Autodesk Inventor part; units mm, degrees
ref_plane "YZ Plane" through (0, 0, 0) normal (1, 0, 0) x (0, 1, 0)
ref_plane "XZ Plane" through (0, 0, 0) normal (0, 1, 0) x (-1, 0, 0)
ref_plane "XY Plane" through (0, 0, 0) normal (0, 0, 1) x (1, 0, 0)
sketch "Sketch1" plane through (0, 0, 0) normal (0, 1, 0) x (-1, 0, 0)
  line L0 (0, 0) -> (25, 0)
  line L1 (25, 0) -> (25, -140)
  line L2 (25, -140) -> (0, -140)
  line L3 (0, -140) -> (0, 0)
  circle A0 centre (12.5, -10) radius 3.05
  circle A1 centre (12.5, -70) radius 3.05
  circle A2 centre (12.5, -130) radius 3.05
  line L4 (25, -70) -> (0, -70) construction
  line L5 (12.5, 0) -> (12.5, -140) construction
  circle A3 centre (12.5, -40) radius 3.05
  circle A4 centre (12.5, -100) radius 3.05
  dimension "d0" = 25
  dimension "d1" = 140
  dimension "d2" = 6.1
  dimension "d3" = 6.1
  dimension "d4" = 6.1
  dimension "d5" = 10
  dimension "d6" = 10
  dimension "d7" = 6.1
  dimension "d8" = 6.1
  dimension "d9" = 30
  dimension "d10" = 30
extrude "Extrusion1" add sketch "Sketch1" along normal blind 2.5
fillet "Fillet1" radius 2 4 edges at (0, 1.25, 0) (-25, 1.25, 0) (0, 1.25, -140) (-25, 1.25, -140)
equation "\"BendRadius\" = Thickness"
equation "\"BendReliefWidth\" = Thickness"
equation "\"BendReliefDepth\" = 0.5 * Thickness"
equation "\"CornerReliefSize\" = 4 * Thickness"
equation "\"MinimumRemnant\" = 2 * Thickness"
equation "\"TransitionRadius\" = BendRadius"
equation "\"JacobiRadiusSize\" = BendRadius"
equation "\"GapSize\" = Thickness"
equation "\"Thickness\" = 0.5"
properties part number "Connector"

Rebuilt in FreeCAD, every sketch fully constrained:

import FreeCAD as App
import Part
import Sketcher
from FreeCAD import Vector


def edges_at(feature, points):
    """Names of the edges that pass closest to the given points."""
    edges = feature.Shape.Edges
    near = lambda p: min(range(len(edges)), key=lambda i: edges[i].distToShape(Part.Vertex(*p))[0])
    return sorted({f"Edge{near(p) + 1}" for p in points})

doc = App.newDocument("Part")
body = doc.addObject("PartDesign::Body", "Body")

sketch1 = body.newObject("Sketcher::SketchObject", "Sketch")
sketch1.AttachmentSupport = (doc.getObject("XZ_Plane"), [""])
sketch1.MapMode = "FlatFace"
sketch1.addGeometry([
    Part.LineSegment(Vector(-25, 0, 0), Vector(0, 0, 0)),
    Part.LineSegment(Vector(0, 0, 0), Vector(0, -140, 0)),
    Part.LineSegment(Vector(0, -140, 0), Vector(-25, -140, 0)),
    Part.LineSegment(Vector(-25, -140, 0), Vector(-25, 0, 0)),
    Part.Circle(Vector(-12.5, -130, 0), Vector(0, 0, 1), 3),
    Part.Circle(Vector(-12.5, -100, 0), Vector(0, 0, 1), 3),
    Part.Circle(Vector(-12.5, -70, 0), Vector(0, 0, 1), 3),
    Part.Circle(Vector(-12.5, -40, 0), Vector(0, 0, 1), 3),
    Part.Circle(Vector(-12.5, -10, 0), Vector(0, 0, 1), 3),
], False)
sketch1.addConstraint([
    Sketcher.Constraint("Coincident", 0, 2, 1, 1),
    Sketcher.Constraint("Coincident", 1, 2, 2, 1),
    Sketcher.Constraint("Coincident", 2, 2, 3, 1),
    Sketcher.Constraint("Coincident", 3, 2, 0, 1),
    Sketcher.Constraint("Horizontal", 0),
    Sketcher.Constraint("Vertical", 1),
    Sketcher.Constraint("Horizontal", 2),
    Sketcher.Constraint("Vertical", 3),
    Sketcher.Constraint("Coincident", 0, 2, -1, 1),
    Sketcher.Constraint("Equal", 4, 5),
    Sketcher.Constraint("Equal", 5, 6),
    Sketcher.Constraint("Equal", 6, 7),
    Sketcher.Constraint("Equal", 7, 8),
    Sketcher.Constraint("Vertical", 4, 3, 5, 3),
    Sketcher.Constraint("Vertical", 5, 3, 6, 3),
    Sketcher.Constraint("Vertical", 6, 3, 7, 3),
    Sketcher.Constraint("Vertical", 7, 3, 8, 3),
    Sketcher.Constraint("Diameter", 4, 6.1),
    Sketcher.Constraint("DistanceX", 0, 1, 0, 2, 25.0),
    Sketcher.Constraint("DistanceY", 1, 2, 1, 1, 140.0),
    Sketcher.Constraint("DistanceY", 8, 3, -1, 1, 10.0),
    Sketcher.Constraint("DistanceY", 4, 3, 5, 3, 30.0),
    Sketcher.Constraint("DistanceY", 5, 3, 6, 3, 30.0),
    Sketcher.Constraint("DistanceY", 6, 3, 7, 3, 30.0),
    Sketcher.Constraint("DistanceY", 7, 3, 8, 3, 30.0),
    Sketcher.Constraint("DistanceX", 4, 3, -1, 1, 12.5),
])
pad1 = body.newObject("PartDesign::Pad", "Pad")
pad1.Profile = sketch1
pad1.Length = 2.5
pad1.Reversed = True
doc.recompute()

fillet = body.newObject("PartDesign::Fillet", "Fillet")
fillet.Base = (pad1, edges_at(pad1, [
    (0, 1.25, 0),
    (-25, 1.25, 0),
    (0, 1.25, -140),
    (-25, 1.25, -140),
]))
fillet.Radius = 2

doc.recompute()
